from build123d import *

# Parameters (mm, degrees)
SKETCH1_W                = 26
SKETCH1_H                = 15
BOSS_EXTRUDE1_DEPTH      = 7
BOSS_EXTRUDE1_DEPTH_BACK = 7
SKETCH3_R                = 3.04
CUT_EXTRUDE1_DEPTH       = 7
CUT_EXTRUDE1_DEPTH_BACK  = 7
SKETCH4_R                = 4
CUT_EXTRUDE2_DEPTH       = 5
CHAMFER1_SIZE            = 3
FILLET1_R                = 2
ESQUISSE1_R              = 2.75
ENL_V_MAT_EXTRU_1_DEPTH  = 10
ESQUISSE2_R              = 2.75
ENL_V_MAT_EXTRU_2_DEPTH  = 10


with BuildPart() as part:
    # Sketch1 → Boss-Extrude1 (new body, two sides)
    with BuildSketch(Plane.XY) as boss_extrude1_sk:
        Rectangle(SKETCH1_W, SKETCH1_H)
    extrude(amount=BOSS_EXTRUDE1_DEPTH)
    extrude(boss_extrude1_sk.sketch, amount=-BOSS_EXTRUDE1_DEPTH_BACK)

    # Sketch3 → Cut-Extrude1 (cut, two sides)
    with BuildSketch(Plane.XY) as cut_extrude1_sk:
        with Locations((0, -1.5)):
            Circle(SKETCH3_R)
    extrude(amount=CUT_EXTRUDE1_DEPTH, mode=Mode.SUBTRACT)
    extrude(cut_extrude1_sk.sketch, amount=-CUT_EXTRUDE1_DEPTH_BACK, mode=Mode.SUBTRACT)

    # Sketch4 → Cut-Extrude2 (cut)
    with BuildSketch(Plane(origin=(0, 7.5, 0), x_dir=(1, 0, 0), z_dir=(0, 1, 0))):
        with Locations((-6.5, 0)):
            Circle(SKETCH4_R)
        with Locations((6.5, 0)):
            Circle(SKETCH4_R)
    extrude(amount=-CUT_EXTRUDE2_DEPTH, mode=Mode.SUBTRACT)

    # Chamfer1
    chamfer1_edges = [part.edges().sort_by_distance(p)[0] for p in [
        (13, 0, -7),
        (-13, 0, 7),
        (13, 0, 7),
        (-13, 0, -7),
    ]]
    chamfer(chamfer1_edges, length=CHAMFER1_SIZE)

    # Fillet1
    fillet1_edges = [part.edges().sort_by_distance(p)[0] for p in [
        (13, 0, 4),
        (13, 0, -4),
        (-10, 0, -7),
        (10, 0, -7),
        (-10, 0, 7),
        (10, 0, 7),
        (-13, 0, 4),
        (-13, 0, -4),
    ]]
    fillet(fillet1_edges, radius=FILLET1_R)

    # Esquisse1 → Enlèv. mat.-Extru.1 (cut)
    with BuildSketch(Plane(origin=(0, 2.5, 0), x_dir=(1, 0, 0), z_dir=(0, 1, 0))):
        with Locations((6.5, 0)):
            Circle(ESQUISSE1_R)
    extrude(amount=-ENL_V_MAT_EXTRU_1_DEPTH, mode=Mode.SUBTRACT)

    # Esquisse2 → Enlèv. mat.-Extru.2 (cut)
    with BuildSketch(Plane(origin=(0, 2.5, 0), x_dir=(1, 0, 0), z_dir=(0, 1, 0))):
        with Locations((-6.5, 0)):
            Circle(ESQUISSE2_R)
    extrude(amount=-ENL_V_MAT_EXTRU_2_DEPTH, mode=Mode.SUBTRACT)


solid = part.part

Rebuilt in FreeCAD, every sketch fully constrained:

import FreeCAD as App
import Part
import Sketcher

V = App.Vector
Q = App.Units.Quantity


def edges_at(feature, points):
    """Names of the edges that pass closest to the given points."""
    edges = feature.Shape.Edges
    near = lambda p: min(range(len(edges)), key=lambda i: edges[i].distToShape(Part.Vertex(*p))[0])
    return sorted({f"Edge{near(p) + 1}" for p in points})


def add_polygon(sketch, points):
    """Adds a closed chain of lines whose ends are joined by coincident constraints."""
    first, n = sketch.GeometryCount, len(points)
    for a, b in zip(points, points[1:] + points[:1]):
        sketch.addGeometry(Part.LineSegment(App.Vector(*a, 0), App.Vector(*b, 0)), False)
    for i in range(n):
        sketch.addConstraint(Sketcher.Constraint("Coincident", first + i, 2, first + (i + 1) % n, 1))

doc = App.newDocument("Part")
body = doc.addObject("PartDesign::Body", "Body")

# Sketch on XY plane
sketch1 = doc.addObject("Sketcher::SketchObject", "Sketch")
body.addObject(sketch1)
sketch1.AttachmentSupport = (doc.XY_Plane, [""])
sketch1.MapMode = "FlatFace"
add_polygon(sketch1, [(-13, 8), (-13, -8), (13, -8), (13, 8)])  # lines 0-3
sketch1.addConstraint(Sketcher.Constraint("Vertical", 0))
sketch1.addConstraint(Sketcher.Constraint("Horizontal", 1))
sketch1.addConstraint(Sketcher.Constraint("Vertical", 2))
sketch1.addConstraint(Sketcher.Constraint("Horizontal", 3))
sketch1.addConstraint(Sketcher.Constraint("Symmetric", 0, 2, 2, 2, -1, 1))
sketch1.addConstraint(Sketcher.Constraint("DistanceX", 1, 1, 1, 2, Q("26 mm")))
sketch1.addConstraint(Sketcher.Constraint("DistanceY", 0, 2, 0, 1, Q("15 mm")))
pad1 = doc.addObject("PartDesign::Pad", "Pad")
body.addObject(pad1)
pad1.Profile = sketch1
pad1.Type = "TwoLengths"
pad1.Length = 7
pad1.Length2 = 7

# Sketch on XY plane
sketch2 = doc.addObject("Sketcher::SketchObject", "Sketch001")
body.addObject(sketch2)
sketch2.AttachmentSupport = (doc.XY_Plane, [""])
sketch2.MapMode = "FlatFace"
sketch2.addGeometry(Part.Circle(V(0, -1.5, 0), V(0, 0, 1), 3), False)
sketch2.addConstraint(Sketcher.Constraint("PointOnObject", 0, 3, -2))
sketch2.addConstraint(Sketcher.Constraint("Diameter", 0, Q("6.08 mm")))
sketch2.addConstraint(Sketcher.Constraint("DistanceY", 0, 3, -1, 1, Q("1.5 mm")))
pocket1 = doc.addObject("PartDesign::Pocket", "Pocket")
body.addObject(pocket1)
pocket1.Profile = sketch2
pocket1.Type = "ThroughAll"
pocket1.Midplane = True

# Sketch on XZ plane
sketch3 = doc.addObject("Sketcher::SketchObject", "Sketch002")
body.addObject(sketch3)
sketch3.AttachmentSupport = (doc.XZ_Plane, [""])
sketch3.MapMode = "FlatFace"
sketch3.AttachmentOffset = App.Placement(V(0, 0, -7.5), App.Rotation())
sketch3.addGeometry(Part.Circle(V(-6.5, 0, 0), V(0, 0, 1), 4), False)
sketch3.addGeometry(Part.Circle(V(6.5, 0, 0), V(0, 0, 1), 4), False)
sketch3.addConstraint(Sketcher.Constraint("Equal", 0, 1))
sketch3.addConstraint(Sketcher.Constraint("Symmetric", 0, 3, 1, 3, -1, 1))
sketch3.addConstraint(Sketcher.Constraint("PointOnObject", 0, 3, -1))
sketch3.addConstraint(Sketcher.Constraint("Diameter", 0, Q("8 mm")))
sketch3.addConstraint(Sketcher.Constraint("DistanceX", 0, 3, 1, 3, Q("13 mm")))
pocket2 = doc.addObject("PartDesign::Pocket", "Pocket001")
body.addObject(pocket2)
pocket2.Profile = sketch3
pocket2.Length = 5
pocket2.Reversed = True
doc.recompute()

chamfer = doc.addObject("PartDesign::Chamfer", "Chamfer")
body.addObject(chamfer)
chamfer.Base = (pocket2, edges_at(pocket2, [
    (13, 0, -7),
    (-13, 0, 7),
    (13, 0, 7),
    (-13, 0, -7),
]))
chamfer.Size = 3
doc.recompute()

fillet = doc.addObject("PartDesign::Fillet", "Fillet")
body.addObject(fillet)
fillet.Base = (chamfer, edges_at(chamfer, [
    (13, 0, 4),
    (13, 0, -4),
    (-10, 0, -7),
    (10, 0, -7),
    (-10, 0, 7),
    (10, 0, 7),
    (-13, 0, 4),
    (-13, 0, -4),
]))
fillet.Radius = 2

# Sketch on XZ plane
sketch4 = doc.addObject("Sketcher::SketchObject", "Sketch003")
body.addObject(sketch4)
sketch4.AttachmentSupport = (doc.XZ_Plane, [""])
sketch4.MapMode = "FlatFace"
sketch4.AttachmentOffset = App.Placement(V(0, 0, -2.5), App.Rotation())
sketch4.addGeometry(Part.Circle(V(6.5, 0, 0), V(0, 0, 1), 2.8), False)
sketch4.addConstraint(Sketcher.Constraint("PointOnObject", 0, 3, -1))
sketch4.addConstraint(Sketcher.Constraint("Diameter", 0, Q("5.5 mm")))
sketch4.addConstraint(Sketcher.Constraint("DistanceX", -1, 1, 0, 3, Q("6.5 mm")))
pocket3 = doc.addObject("PartDesign::Pocket", "Pocket002")
body.addObject(pocket3)
pocket3.Profile = sketch4
pocket3.Length = 10
pocket3.Reversed = True

# Sketch on XZ plane
sketch5 = doc.addObject("Sketcher::SketchObject", "Sketch004")
body.addObject(sketch5)
sketch5.AttachmentSupport = (doc.XZ_Plane, [""])
sketch5.MapMode = "FlatFace"
sketch5.AttachmentOffset = App.Placement(V(0, 0, -2.5), App.Rotation())
sketch5.addGeometry(Part.Circle(V(-6.5, 0, 0), V(0, 0, 1), 2.8), False)
sketch5.addConstraint(Sketcher.Constraint("PointOnObject", 0, 3, -1))
sketch5.addConstraint(Sketcher.Constraint("Diameter", 0, Q("5.5 mm")))
sketch5.addConstraint(Sketcher.Constraint("DistanceX", 0, 3, -1, 1, Q("6.5 mm")))
pocket4 = doc.addObject("PartDesign::Pocket", "Pocket003")
body.addObject(pocket4)
pocket4.Profile = sketch5
pocket4.Length = 10
pocket4.Reversed = True

doc.recompute()
